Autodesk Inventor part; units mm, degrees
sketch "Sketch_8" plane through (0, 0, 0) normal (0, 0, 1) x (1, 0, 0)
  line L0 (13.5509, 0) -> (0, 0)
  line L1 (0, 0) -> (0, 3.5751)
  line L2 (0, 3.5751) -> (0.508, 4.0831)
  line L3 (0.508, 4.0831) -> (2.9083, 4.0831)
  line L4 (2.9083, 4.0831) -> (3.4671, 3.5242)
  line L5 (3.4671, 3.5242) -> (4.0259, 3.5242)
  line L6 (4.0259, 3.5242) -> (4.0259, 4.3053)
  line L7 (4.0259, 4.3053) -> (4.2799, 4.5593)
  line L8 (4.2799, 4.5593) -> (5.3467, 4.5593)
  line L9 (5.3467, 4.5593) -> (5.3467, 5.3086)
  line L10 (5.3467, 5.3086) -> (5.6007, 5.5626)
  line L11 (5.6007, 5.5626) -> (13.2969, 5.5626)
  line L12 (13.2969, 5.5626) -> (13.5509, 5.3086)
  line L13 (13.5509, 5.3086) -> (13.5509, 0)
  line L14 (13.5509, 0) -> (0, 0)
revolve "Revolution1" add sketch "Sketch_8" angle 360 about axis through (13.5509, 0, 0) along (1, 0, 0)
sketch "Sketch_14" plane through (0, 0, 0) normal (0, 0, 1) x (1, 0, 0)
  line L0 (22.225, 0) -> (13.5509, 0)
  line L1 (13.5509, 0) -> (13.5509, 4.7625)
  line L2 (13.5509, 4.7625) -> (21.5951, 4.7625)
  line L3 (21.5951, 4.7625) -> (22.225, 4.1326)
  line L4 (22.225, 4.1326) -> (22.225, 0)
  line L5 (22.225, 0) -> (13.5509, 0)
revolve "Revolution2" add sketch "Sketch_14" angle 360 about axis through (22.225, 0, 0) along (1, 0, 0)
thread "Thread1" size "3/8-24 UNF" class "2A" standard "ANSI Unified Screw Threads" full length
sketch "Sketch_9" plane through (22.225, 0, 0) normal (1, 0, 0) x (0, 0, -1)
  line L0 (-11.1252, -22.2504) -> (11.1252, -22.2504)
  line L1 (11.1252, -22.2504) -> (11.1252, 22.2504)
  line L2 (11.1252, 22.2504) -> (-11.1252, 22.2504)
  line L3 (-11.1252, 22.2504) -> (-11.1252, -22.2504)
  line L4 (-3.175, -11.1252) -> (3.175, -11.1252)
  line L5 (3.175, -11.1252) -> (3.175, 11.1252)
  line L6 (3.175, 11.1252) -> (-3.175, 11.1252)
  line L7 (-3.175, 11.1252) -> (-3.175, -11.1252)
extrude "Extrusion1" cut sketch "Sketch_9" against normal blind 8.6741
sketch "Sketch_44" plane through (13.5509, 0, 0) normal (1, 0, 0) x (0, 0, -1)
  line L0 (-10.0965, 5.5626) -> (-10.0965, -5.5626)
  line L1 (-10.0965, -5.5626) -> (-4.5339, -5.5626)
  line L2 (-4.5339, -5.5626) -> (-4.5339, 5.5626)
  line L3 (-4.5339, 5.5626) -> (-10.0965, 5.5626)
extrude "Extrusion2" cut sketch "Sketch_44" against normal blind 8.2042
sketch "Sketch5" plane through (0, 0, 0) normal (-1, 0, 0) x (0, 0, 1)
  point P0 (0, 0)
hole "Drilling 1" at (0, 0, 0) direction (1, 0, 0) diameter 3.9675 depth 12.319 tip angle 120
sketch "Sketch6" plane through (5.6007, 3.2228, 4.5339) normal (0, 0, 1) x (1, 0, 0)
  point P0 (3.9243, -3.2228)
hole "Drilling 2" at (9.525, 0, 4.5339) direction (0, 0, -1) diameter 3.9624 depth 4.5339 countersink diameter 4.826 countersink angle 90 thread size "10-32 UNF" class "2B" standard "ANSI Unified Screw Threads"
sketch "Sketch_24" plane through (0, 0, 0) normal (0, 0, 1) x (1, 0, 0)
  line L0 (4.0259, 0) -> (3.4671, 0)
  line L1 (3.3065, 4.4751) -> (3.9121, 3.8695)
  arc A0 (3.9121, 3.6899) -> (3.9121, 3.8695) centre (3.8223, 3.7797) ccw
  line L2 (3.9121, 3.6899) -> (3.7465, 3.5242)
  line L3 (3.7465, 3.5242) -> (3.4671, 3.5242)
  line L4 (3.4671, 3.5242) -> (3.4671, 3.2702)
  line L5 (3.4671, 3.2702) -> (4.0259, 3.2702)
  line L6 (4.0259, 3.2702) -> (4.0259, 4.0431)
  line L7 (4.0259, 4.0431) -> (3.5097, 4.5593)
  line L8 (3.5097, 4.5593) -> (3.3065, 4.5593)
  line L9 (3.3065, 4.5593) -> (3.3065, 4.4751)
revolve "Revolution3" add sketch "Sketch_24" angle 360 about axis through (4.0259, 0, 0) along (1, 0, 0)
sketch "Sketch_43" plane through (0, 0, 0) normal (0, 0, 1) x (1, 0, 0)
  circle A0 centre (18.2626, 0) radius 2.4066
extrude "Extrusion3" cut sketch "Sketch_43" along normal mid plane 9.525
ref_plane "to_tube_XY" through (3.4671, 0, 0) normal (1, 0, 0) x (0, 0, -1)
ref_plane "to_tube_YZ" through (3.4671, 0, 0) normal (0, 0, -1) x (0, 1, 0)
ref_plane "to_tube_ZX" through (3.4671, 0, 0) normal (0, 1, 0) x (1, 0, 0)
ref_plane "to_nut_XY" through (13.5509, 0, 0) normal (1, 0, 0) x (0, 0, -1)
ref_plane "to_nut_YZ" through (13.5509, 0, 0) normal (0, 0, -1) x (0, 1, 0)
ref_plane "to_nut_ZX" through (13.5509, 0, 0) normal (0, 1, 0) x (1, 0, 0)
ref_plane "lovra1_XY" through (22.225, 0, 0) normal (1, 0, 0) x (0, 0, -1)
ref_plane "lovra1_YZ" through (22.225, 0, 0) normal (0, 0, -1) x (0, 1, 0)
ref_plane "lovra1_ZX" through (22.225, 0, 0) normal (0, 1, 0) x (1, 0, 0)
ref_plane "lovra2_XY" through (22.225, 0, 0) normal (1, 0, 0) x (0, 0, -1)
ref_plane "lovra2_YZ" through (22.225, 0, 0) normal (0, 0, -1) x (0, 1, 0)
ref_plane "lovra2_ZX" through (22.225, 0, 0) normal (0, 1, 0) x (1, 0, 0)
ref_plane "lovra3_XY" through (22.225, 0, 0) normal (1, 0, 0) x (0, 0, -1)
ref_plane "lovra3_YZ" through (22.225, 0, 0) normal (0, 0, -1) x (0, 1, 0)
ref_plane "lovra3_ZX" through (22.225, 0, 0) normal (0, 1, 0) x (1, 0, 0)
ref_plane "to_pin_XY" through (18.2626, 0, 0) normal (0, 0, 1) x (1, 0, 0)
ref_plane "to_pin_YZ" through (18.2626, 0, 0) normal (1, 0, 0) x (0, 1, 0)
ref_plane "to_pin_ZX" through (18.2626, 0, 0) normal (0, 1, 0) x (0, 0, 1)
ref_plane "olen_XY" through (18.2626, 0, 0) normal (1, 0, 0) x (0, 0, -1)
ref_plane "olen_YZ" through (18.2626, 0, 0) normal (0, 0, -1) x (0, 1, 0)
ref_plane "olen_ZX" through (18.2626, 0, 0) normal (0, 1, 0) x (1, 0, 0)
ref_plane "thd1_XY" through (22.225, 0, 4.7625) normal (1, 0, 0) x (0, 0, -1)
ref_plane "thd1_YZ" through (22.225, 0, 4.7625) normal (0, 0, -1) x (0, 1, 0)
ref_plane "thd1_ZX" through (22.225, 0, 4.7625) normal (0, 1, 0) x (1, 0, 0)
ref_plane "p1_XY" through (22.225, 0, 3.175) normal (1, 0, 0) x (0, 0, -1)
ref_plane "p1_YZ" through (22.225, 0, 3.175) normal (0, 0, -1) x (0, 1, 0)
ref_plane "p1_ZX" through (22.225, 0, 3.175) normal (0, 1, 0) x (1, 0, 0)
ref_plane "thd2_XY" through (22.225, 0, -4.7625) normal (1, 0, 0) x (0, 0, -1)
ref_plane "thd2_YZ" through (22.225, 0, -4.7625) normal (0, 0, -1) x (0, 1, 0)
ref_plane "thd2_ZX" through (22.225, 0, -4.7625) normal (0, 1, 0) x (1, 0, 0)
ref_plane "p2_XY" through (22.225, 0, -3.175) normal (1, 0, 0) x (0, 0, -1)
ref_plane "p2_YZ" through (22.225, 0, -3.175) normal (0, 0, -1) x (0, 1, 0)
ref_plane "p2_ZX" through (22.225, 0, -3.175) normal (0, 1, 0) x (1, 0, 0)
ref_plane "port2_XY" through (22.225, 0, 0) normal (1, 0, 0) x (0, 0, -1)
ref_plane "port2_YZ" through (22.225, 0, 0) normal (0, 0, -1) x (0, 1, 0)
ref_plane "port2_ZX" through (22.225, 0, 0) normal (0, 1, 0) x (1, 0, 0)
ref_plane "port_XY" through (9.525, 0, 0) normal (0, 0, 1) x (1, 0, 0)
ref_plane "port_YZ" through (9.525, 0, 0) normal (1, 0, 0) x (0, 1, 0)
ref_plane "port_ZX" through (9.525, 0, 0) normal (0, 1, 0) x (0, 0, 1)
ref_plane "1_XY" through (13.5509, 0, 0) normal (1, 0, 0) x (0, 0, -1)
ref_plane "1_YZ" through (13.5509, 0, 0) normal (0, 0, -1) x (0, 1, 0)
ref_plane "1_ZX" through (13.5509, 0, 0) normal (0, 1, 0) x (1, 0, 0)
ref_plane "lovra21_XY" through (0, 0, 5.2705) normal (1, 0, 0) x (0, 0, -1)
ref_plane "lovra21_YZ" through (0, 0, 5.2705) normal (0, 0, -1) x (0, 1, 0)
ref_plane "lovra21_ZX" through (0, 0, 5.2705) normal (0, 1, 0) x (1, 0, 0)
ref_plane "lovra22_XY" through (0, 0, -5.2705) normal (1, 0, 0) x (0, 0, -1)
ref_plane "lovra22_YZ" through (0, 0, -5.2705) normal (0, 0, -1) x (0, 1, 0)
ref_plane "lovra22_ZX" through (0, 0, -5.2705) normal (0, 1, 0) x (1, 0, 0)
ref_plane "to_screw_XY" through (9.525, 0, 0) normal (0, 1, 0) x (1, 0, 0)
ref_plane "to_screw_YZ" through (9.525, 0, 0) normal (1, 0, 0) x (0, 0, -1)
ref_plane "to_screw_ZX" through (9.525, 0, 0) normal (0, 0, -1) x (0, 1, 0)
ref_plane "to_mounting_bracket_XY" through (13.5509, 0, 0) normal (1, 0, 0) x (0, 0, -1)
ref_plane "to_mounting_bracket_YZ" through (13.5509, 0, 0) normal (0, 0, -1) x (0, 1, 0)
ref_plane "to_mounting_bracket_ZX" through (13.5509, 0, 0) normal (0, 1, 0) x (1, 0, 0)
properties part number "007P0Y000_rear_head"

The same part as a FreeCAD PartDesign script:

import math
import FreeCAD as App
import Part
import Sketcher

V = App.Vector
Q = App.Units.Quantity

doc = App.newDocument("Part")
body = doc.addObject("PartDesign::Body", "Body")

sketch1 = body.newObject("Sketcher::SketchObject", "Sketch")
sketch1.AttachmentSupport = (doc.getObject("XY_Plane"), [""])
sketch1.MapMode = "FlatFace"
sketch1.addGeometry([
    Part.LineSegment(V(0, 0, 0), V(13.5509, 0, 0)),
    Part.LineSegment(V(13.5509, 0, 0), V(13.5509, 5.3086, 0)),
    Part.LineSegment(V(13.5509, 5.3086, 0), V(13.2969, 5.5626, 0)),
    Part.LineSegment(V(13.2969, 5.5626, 0), V(5.6007, 5.5626, 0)),
    Part.LineSegment(V(5.6007, 5.5626, 0), V(5.3467, 5.3086, 0)),
    Part.LineSegment(V(5.3467, 5.3086, 0), V(5.3467, 4.5593, 0)),
    Part.LineSegment(V(5.3467, 4.5593, 0), V(4.2799, 4.5593, 0)),
    Part.LineSegment(V(4.2799, 4.5593, 0), V(4.0259, 4.3053, 0)),
    Part.LineSegment(V(4.0259, 4.3053, 0), V(4.0259, 3.5242, 0)),
    Part.LineSegment(V(4.0259, 3.5242, 0), V(3.4671, 3.5242, 0)),
    Part.LineSegment(V(3.4671, 3.5242, 0), V(2.9083, 4.0831, 0)),
    Part.LineSegment(V(2.9083, 4.0831, 0), V(0.508, 4.0831, 0)),
    Part.LineSegment(V(0.508, 4.0831, 0), V(0, 3.5751, 0)),
    Part.LineSegment(V(0, 3.5751, 0), V(0, 0, 0)),
], False)
sketch1.addConstraint([
    Sketcher.Constraint("Coincident", 0, 2, 1, 1),
    Sketcher.Constraint("Coincident", 1, 2, 2, 1),
    Sketcher.Constraint("Coincident", 2, 2, 3, 1),
    Sketcher.Constraint("Coincident", 3, 2, 4, 1),
    Sketcher.Constraint("Coincident", 4, 2, 5, 1),
    Sketcher.Constraint("Coincident", 5, 2, 6, 1),
    Sketcher.Constraint("Coincident", 6, 2, 7, 1),
    Sketcher.Constraint("Coincident", 7, 2, 8, 1),
    Sketcher.Constraint("Coincident", 8, 2, 9, 1),
    Sketcher.Constraint("Coincident", 9, 2, 10, 1),
    Sketcher.Constraint("Coincident", 10, 2, 11, 1),
    Sketcher.Constraint("Coincident", 11, 2, 12, 1),
    Sketcher.Constraint("Coincident", 12, 2, 13, 1),
    Sketcher.Constraint("Coincident", 13, 2, 0, 1),
    Sketcher.Constraint("Horizontal", 0),
    Sketcher.Constraint("Vertical", 1),
    Sketcher.Constraint("Horizontal", 3),
    Sketcher.Constraint("Vertical", 5),
    Sketcher.Constraint("Horizontal", 6),
    Sketcher.Constraint("Vertical", 8),
    Sketcher.Constraint("Horizontal", 9),
    Sketcher.Constraint("Horizontal", 11),
    Sketcher.Constraint("Vertical", 13),
    Sketcher.Constraint("Coincident", 13, 2, -1, 1),
    Sketcher.Constraint("Perpendicular", 2, 4),
    Sketcher.Constraint("Parallel", 4, 7),
    Sketcher.Constraint("Perpendicular", 7, 10),
    Sketcher.Constraint("Perpendicular", 10, 12),
    Sketcher.Constraint("Horizontal", 1, 2, 4, 2),
    Sketcher.Constraint("Equal", 2, 4),
    Sketcher.Constraint("Equal", 4, 7),
    Sketcher.Constraint("DistanceX", 3, 2, 3, 1, Q("0.303 in")),
    Sketcher.Constraint("DistanceX", 6, 2, 6, 1, Q("0.042 in")),
    Sketcher.Constraint("DistanceX", 9, 2, 9, 1, Q("0.022 in")),
    Sketcher.Constraint("DistanceY", 1, 1, 1, 2, Q("0.209 in")),
    Sketcher.Constraint("DistanceX", -1, 1, 11, 2, Q("0.02 in")),
    Sketcher.Constraint("DistanceX", 2, 2, 1, 2, Q("0.01 in")),
    Sketcher.Constraint("DistanceX", 0, 1, 0, 2, Q("0.5335 in")),
    Sketcher.Constraint("DistanceX", 11, 2, 11, 1, Q("0.0945 in")),
    Sketcher.Constraint("DistanceY", 5, 2, 5, 1, Q("0.0295 in")),
    Sketcher.Constraint("DistanceY", 8, 2, 8, 1, 0.781),
])
revolution = body.newObject("PartDesign::Revolution", "Revolution")
revolution.Profile = sketch1
revolution.ReferenceAxis = (sketch1, ["H_Axis"])
revolution.Angle = 360

sketch2 = body.newObject("Sketcher::SketchObject", "Sketch001")
sketch2.AttachmentSupport = (doc.getObject("XY_Plane"), [""])
sketch2.MapMode = "FlatFace"
sketch2.addGeometry([
    Part.LineSegment(V(13.5509, 0, 0), V(22.225, 0, 0)),
    Part.LineSegment(V(22.225, 0, 0), V(22.225, 4.1326, 0)),
    Part.LineSegment(V(22.225, 4.1326, 0), V(21.5951, 4.7625, 0)),
    Part.LineSegment(V(21.5951, 4.7625, 0), V(13.5509, 4.7625, 0)),
    Part.LineSegment(V(13.5509, 4.7625, 0), V(13.5509, 0, 0)),
], False)
sketch2.addConstraint([
    Sketcher.Constraint("Coincident", 0, 2, 1, 1),
    Sketcher.Constraint("Coincident", 1, 2, 2, 1),
    Sketcher.Constraint("Coincident", 2, 2, 3, 1),
    Sketcher.Constraint("Coincident", 3, 2, 4, 1),
    Sketcher.Constraint("Coincident", 4, 2, 0, 1),
    Sketcher.Constraint("Horizontal", 0),
    Sketcher.Constraint("Vertical", 1),
    Sketcher.Constraint("Horizontal", 3),
    Sketcher.Constraint("Vertical", 4),
    Sketcher.Constraint("PointOnObject", 0, 2, -1),
    Sketcher.Constraint("Angle", 2, Q("135 deg")),
    Sketcher.Constraint("DistanceY", 4, 2, 4, 1, Q("0.1875 in")),
    Sketcher.Constraint("DistanceX", 0, 1, 0, 2, Q("0.3415 in")),
    Sketcher.Constraint("DistanceX", 3, 2, 3, 1, Q("0.3167 in")),
    Sketcher.Constraint("DistanceX", -1, 1, 0, 2, Q("0.875 in")),
])
revolution2 = body.newObject("PartDesign::Revolution", "Revolution001")
revolution2.Profile = sketch2
revolution2.ReferenceAxis = (sketch2, ["H_Axis"])
revolution2.Angle = 360

sketch3 = body.newObject("Sketcher::SketchObject", "Sketch002")
sketch3.AttachmentSupport = (doc.getObject("YZ_Plane"), [""])
sketch3.MapMode = "FlatFace"
sketch3.AttachmentOffset = App.Placement(V(0, 0, 0.875 * 25.4), App.Rotation())
sketch3.addGeometry([
    Part.LineSegment(V(22.2504, 11.1252, 0), V(-22.2504, 11.1252, 0)),
    Part.LineSegment(V(-22.2504, 11.1252, 0), V(-22.2504, -11.1252, 0)),
    Part.LineSegment(V(-22.2504, -11.1252, 0), V(22.2504, -11.1252, 0)),
    Part.LineSegment(V(22.2504, -11.1252, 0), V(22.2504, 11.1252, 0)),
    Part.LineSegment(V(-11.1252, -3.175, 0), V(-11.1252, 3.175, 0)),
    Part.LineSegment(V(-11.1252, 3.175, 0), V(11.1252, 3.175, 0)),
    Part.LineSegment(V(11.1252, 3.175, 0), V(11.1252, -3.175, 0)),
    Part.LineSegment(V(11.1252, -3.175, 0), V(-11.1252, -3.175, 0)),
], False)
sketch3.addConstraint([
    Sketcher.Constraint("Coincident", 0, 2, 1, 1),
    Sketcher.Constraint("Coincident", 1, 2, 2, 1),
    Sketcher.Constraint("Coincident", 2, 2, 3, 1),
    Sketcher.Constraint("Coincident", 3, 2, 0, 1),
    Sketcher.Constraint("Coincident", 4, 2, 5, 1),
    Sketcher.Constraint("Coincident", 5, 2, 6, 1),
    Sketcher.Constraint("Coincident", 6, 2, 7, 1),
    Sketcher.Constraint("Coincident", 7, 2, 4, 1),
    Sketcher.Constraint("Horizontal", 0),
    Sketcher.Constraint("Vertical", 1),
    Sketcher.Constraint("Horizontal", 2),
    Sketcher.Constraint("Vertical", 3),
    Sketcher.Constraint("Vertical", 4),
    Sketcher.Constraint("Horizontal", 5),
    Sketcher.Constraint("Vertical", 6),
    Sketcher.Constraint("Horizontal", 7),
    Sketcher.Constraint("Symmetric", 0, 2, 2, 2, -1, 1),
    Sketcher.Constraint("Symmetric", 4, 2, 6, 2, -1, 1),
    Sketcher.Constraint("Equal", 7, 1),
    Sketcher.Constraint("DistanceY", 4, 1, 4, 2, Q("0.25 in")),
    Sketcher.Constraint("DistanceX", 0, 2, 0, 1, Q("1.752 in")),
    Sketcher.Constraint("DistanceX", 5, 1, 5, 2, Q("0.876 in")),
])
pocket1 = body.newObject("PartDesign::Pocket", "Pocket")
pocket1.Profile = sketch3
pocket1.Length = Q("0.3415 in")

sketch4 = body.newObject("Sketcher::SketchObject", "Sketch003")
sketch4.AttachmentSupport = (doc.getObject("YZ_Plane"), [""])
sketch4.MapMode = "FlatFace"
sketch4.AttachmentOffset = App.Placement(V(0, 0, 0.5335 * 25.4), App.Rotation())
sketch4.addGeometry([
    Part.LineSegment(V(5.5626, 4.5339, 0), V(5.5626, 10.0965, 0)),
    Part.LineSegment(V(5.5626, 10.0965, 0), V(-5.5626, 10.0965, 0)),
    Part.LineSegment(V(-5.5626, 10.0965, 0), V(-5.5626, 4.5339, 0)),
    Part.LineSegment(V(-5.5626, 4.5339, 0), V(5.5626, 4.5339, 0)),
], False)
sketch4.addConstraint([
    Sketcher.Constraint("Coincident", 0, 2, 1, 1),
    Sketcher.Constraint("Coincident", 1, 2, 2, 1),
    Sketcher.Constraint("Coincident", 2, 2, 3, 1),
    Sketcher.Constraint("Coincident", 3, 2, 0, 1),
    Sketcher.Constraint("Vertical", 0),
    Sketcher.Constraint("Horizontal", 1),
    Sketcher.Constraint("Vertical", 2),
    Sketcher.Constraint("Horizontal", 3),
    Sketcher.Constraint("DistanceX", 1, 2, 1, 1, Q("0.438 in")),
    Sketcher.Constraint("DistanceY", 0, 1, 0, 2, Q("0.219 in")),
    Sketcher.Constraint("DistanceX", -1, 1, 0, 2, Q("0.219 in")),
    Sketcher.Constraint("DistanceY", -1, 1, 0, 2, Q("0.3975 in")),
])
pocket2 = body.newObject("PartDesign::Pocket", "Pocket001")
pocket2.Profile = sketch4
pocket2.Length = Q("0.323 in")

sketch5 = body.newObject("Sketcher::SketchObject", "Sketch004")
sketch5.AttachmentSupport = (doc.getObject("YZ_Plane"), [""])
sketch5.MapMode = "FlatFace"
sketch5.addGeometry(Part.Circle(V(0, 0, 0), V(0, 0, 1), 1.98375), False)
sketch5.addConstraint([
    Sketcher.Constraint("Coincident", 0, 3, -1, 1),
    Sketcher.Constraint("Diameter", 0, Q("0.1562 in")),
])
doc.recompute()
hole = body.newObject("PartDesign::Hole", "Hole")
hole.Profile = sketch5
hole.ThreadType = "None"
hole.Diameter = Q("0.1562008 in")
hole.DepthType = "Dimension"
hole.Depth = Q("0.485 in")
hole.DrillPoint = "Angled"
hole.DrillPointAngle = 120
hole.Reversed = True

sketch6 = body.newObject("Sketcher::SketchObject", "Sketch005")
sketch6.AttachmentSupport = (doc.getObject("XY_Plane"), [""])
sketch6.MapMode = "FlatFace"
sketch6.AttachmentOffset = App.Placement(V(0, 0, 0.1785 * 25.4), App.Rotation())
sketch6.addGeometry(Part.Circle(V(9.525, 0, 0), V(0, 0, 1), 1.9812), False)
sketch6.addConstraint([
    Sketcher.Constraint("PointOnObject", 0, 3, -1),
    Sketcher.Constraint("Diameter", 0, Q("0.156 in")),
    Sketcher.Constraint("DistanceX", -1, 1, 0, 3, Q("0.375 in")),
])
doc.recompute()
hole2 = body.newObject("PartDesign::Hole", "Hole001")
hole2.Profile = sketch6
hole2.ThreadType = "None"
hole2.Diameter = Q("0.156 in")
hole2.DepthType = "Dimension"
hole2.Depth = Q("0.1785 in")
hole2.DrillPoint = "Flat"
hole2.HoleCutType = "Countersink"
hole2.HoleCutDiameter = Q("0.19 in")
hole2.HoleCutCountersinkAngle = 90

sketch7 = body.newObject("Sketcher::SketchObject", "Sketch006")
sketch7.AttachmentSupport = (doc.getObject("XY_Plane"), [""])
sketch7.MapMode = "FlatFace"
sketch7.addGeometry([
    Part.LineSegment(V(3.3065, 4.5593, 0), V(3.3065, 4.4751, 0)),
    Part.LineSegment(V(3.3065, 4.4751, 0), V(3.9121, 3.8695, 0)),
    Part.ArcOfCircle(Part.Circle(V(3.8223, 3.7797, 0), V(0, 0, 1), 0.126996), math.radians(-45), math.radians(45)),
    Part.LineSegment(V(3.9121, 3.6899, 0), V(3.7465, 3.5242, 0)),
    Part.LineSegment(V(3.7465, 3.5242, 0), V(3.4671, 3.5242, 0)),
    Part.LineSegment(V(3.4671, 3.5242, 0), V(3.4671, 3.2702, 0)),
    Part.LineSegment(V(3.4671, 3.2702, 0), V(4.0259, 3.2702, 0)),
    Part.LineSegment(V(4.0259, 3.2702, 0), V(4.0259, 4.0431, 0)),
    Part.LineSegment(V(4.0259, 4.0431, 0), V(3.5097, 4.5593, 0)),
    Part.LineSegment(V(3.5097, 4.5593, 0), V(3.3065, 4.5593, 0)),
], False)
sketch7.addConstraint([
    Sketcher.Constraint("Coincident", 0, 2, 1, 1),
    Sketcher.Constraint("Tangent", 1, 2, 2, 2),
    Sketcher.Constraint("Tangent", 2, 1, 3, 1),
    Sketcher.Constraint("Coincident", 3, 2, 4, 1),
    Sketcher.Constraint("Coincident", 4, 2, 5, 1),
    Sketcher.Constraint("Coincident", 5, 2, 6, 1),
    Sketcher.Constraint("Coincident", 6, 2, 7, 1),
    Sketcher.Constraint("Coincident", 7, 2, 8, 1),
    Sketcher.Constraint("Coincident", 8, 2, 9, 1),
    Sketcher.Constraint("Coincident", 9, 2, 0, 1),
    Sketcher.Constraint("Vertical", 0),
    Sketcher.Constraint("Horizontal", 4),
    Sketcher.Constraint("Vertical", 5),
    Sketcher.Constraint("Horizontal", 6),
    Sketcher.Constraint("Vertical", 7),
    Sketcher.Constraint("Horizontal", 9),
    Sketcher.Constraint("Perpendicular", 1, 3),
    Sketcher.Constraint("Perpendicular", 3, 8),
    Sketcher.Constraint("Vertical", 1, 2, 2, 1),
    Sketcher.Constraint("Radius", 2, Q("0.005 in")),
    Sketcher.Constraint("DistanceY", 5, 2, 5, 1, Q("0.01 in")),
    Sketcher.Constraint("DistanceX", 4, 2, 4, 1, Q("0.011 in")),
    Sketcher.Constraint("DistanceX", 6, 1, 6, 2, Q("0.022 in")),
    Sketcher.Constraint("DistanceX", 9, 2, 9, 1, Q("0.008 in")),
    Sketcher.Constraint("DistanceY", 0, 2, 0, 1, 0.0842),
    Sketcher.Constraint("DistanceY", 7, 1, 7, 2, 0.773),
    Sketcher.Constraint("DistanceY", -1, 1, 2, 3, Q("0.1488 in")),
    Sketcher.Constraint("DistanceX", -1, 1, 3, 2, Q("0.1475 in")),
    Sketcher.Constraint("DistanceY", -1, 1, 8, 2, Q("0.1795 in")),
])
revolution3 = body.newObject("PartDesign::Revolution", "Revolution002")
revolution3.Profile = sketch7
revolution3.ReferenceAxis = (sketch7, ["H_Axis"])
revolution3.Angle = 360

sketch8 = body.newObject("Sketcher::SketchObject", "Sketch007")
sketch8.AttachmentSupport = (doc.getObject("XY_Plane"), [""])
sketch8.MapMode = "FlatFace"
sketch8.addGeometry(Part.Circle(V(18.2626, 0, 0), V(0, 0, 1), 2.4066), False)
sketch8.addConstraint([
    Sketcher.Constraint("PointOnObject", 0, 3, -1),
    Sketcher.Constraint("Diameter", 0, Q("0.1895 in")),
    Sketcher.Constraint("DistanceX", -1, 1, 0, 3, Q("0.719 in")),
])
pocket3 = body.newObject("PartDesign::Pocket", "Pocket002")
pocket3.Profile = sketch8
pocket3.Length = Q("0.375 in")
pocket3.Midplane = True

doc.recompute()
